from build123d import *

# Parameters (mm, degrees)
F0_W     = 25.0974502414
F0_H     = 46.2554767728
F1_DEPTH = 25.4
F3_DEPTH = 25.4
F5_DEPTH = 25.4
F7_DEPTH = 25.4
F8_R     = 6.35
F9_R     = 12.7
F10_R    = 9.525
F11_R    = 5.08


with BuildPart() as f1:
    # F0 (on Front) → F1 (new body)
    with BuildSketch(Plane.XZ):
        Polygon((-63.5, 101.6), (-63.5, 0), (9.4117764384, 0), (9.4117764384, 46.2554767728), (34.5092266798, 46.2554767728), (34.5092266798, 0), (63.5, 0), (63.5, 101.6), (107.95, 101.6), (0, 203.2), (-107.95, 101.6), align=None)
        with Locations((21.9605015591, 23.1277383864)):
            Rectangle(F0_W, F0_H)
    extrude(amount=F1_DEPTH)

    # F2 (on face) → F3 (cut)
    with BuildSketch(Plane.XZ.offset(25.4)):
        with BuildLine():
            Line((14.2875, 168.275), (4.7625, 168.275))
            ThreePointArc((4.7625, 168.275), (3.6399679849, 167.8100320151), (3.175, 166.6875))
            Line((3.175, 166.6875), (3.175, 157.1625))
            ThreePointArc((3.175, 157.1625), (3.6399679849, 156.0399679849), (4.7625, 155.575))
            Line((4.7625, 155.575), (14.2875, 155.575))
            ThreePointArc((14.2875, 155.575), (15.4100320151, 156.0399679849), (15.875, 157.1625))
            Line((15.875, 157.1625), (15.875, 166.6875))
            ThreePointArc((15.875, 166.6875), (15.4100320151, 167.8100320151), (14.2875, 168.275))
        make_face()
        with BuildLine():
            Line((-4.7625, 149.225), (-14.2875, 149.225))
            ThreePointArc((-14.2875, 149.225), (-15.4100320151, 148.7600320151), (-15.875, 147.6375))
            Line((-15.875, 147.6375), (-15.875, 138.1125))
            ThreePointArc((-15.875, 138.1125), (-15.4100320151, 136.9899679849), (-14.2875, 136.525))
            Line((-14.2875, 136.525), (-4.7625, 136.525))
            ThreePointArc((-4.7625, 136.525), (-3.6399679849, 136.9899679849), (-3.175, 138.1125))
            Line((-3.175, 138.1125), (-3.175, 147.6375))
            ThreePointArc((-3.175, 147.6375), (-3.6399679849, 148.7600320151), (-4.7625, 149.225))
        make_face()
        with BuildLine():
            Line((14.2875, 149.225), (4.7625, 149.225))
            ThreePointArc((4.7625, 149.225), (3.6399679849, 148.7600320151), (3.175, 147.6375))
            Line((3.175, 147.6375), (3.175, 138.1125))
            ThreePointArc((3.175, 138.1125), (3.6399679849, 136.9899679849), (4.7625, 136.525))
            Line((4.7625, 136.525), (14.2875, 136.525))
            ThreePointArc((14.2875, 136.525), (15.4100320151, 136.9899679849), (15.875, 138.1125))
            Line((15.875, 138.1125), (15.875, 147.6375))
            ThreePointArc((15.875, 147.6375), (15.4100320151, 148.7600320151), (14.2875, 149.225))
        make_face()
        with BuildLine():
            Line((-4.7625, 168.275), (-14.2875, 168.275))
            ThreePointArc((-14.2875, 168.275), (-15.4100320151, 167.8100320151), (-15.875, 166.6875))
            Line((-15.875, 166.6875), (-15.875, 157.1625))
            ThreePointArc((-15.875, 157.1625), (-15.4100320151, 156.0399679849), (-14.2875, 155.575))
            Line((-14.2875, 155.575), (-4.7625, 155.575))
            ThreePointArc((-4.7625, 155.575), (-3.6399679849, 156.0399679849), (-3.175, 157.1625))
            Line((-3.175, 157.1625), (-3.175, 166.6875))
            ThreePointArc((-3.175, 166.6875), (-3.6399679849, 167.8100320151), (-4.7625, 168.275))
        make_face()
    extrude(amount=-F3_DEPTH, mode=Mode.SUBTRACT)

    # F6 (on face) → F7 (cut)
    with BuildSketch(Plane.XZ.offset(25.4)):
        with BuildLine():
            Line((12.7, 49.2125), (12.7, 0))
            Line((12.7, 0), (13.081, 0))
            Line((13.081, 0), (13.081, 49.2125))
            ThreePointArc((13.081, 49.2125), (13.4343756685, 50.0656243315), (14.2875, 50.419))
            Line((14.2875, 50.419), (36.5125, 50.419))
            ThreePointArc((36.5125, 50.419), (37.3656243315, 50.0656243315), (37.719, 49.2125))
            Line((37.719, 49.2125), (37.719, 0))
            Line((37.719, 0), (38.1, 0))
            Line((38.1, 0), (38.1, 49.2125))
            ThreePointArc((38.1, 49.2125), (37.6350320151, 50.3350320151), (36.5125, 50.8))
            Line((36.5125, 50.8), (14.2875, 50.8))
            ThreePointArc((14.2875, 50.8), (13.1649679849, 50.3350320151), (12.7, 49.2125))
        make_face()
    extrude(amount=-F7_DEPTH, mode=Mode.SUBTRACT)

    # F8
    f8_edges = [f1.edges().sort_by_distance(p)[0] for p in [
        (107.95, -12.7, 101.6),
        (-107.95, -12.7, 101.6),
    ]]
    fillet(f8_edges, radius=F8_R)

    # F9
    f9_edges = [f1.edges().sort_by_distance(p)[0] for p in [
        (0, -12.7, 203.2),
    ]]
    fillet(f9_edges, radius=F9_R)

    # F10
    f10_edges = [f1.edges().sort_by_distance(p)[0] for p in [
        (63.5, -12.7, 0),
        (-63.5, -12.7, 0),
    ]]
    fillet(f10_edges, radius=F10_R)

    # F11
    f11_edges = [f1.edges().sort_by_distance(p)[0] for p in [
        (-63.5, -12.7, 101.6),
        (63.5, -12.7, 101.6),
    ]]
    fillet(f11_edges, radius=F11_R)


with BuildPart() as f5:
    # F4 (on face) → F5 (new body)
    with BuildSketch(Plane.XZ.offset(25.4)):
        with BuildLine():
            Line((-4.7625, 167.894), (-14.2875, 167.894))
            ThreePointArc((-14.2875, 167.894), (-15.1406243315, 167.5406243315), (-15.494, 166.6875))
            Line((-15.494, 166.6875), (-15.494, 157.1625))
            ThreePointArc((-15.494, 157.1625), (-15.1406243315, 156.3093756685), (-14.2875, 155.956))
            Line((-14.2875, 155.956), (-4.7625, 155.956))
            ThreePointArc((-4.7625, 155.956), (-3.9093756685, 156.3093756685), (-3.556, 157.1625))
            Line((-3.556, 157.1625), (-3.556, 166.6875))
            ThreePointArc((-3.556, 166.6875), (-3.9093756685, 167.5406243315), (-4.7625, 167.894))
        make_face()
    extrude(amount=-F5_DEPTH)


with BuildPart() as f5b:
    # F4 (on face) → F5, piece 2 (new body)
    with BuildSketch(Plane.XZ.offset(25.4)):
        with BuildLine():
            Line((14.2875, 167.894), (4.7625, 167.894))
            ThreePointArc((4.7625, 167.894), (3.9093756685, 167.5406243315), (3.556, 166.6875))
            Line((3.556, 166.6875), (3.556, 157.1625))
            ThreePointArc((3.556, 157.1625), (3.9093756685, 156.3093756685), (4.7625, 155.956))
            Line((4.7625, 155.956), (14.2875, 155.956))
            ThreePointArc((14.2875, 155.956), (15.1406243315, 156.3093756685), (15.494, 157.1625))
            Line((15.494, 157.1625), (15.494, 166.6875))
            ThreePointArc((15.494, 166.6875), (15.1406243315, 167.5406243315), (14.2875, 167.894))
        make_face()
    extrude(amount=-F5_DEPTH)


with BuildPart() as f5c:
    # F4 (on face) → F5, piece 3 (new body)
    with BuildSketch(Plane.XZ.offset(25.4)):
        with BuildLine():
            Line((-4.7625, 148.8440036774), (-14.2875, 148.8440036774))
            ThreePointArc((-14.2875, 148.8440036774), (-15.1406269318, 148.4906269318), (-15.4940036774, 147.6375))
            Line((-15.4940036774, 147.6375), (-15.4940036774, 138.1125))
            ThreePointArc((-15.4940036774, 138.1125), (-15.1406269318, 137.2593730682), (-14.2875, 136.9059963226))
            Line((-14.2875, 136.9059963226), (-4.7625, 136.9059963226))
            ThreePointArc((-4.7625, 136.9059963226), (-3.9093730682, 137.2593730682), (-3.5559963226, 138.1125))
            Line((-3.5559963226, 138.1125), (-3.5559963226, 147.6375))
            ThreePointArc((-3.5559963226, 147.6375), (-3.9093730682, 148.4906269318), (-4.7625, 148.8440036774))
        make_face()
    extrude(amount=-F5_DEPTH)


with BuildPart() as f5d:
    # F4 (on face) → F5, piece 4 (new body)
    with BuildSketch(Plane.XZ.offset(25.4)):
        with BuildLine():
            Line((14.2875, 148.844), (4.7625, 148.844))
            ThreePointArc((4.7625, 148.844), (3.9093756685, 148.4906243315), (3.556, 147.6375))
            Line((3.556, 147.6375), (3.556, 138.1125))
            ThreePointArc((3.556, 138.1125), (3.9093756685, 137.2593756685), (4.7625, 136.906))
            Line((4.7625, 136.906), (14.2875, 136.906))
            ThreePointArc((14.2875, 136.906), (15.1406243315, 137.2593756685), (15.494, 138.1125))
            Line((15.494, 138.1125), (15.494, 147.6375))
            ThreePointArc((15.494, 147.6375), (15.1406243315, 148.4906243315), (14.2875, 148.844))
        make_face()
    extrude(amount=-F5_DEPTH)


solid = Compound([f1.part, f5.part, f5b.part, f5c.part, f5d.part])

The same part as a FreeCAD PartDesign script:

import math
import FreeCAD as App
import Part
import Sketcher
Q = App.Units.Quantity


def edges_at(feature, points):
    """Names of the edges that pass closest to the given points."""
    edges = feature.Shape.Edges
    near = lambda p: min(range(len(edges)), key=lambda i: edges[i].distToShape(Part.Vertex(*p))[0])
    return sorted({f"Edge{near(p) + 1}" for p in points})

doc = App.newDocument("Part")
body = doc.addObject("PartDesign::Body", "Body")
body.AllowCompound = True

# Sketch on XZ plane
sketch1 = body.newObject("Sketcher::SketchObject", "Sketch")
sketch1.AttachmentSupport = (doc.getObject("XZ_Plane"), [""])
sketch1.MapMode = "FlatFace"
sketch1.addGeometry(Part.LineSegment(App.Vector(-64, 102, 0), App.Vector(-64, 0, 0)), False)
sketch1.addGeometry(Part.LineSegment(App.Vector(-64, 0, 0), App.Vector(64, 0, 0)), False)
sketch1.addGeometry(Part.LineSegment(App.Vector(64, 0, 0), App.Vector(64, 102, 0)), False)
sketch1.addGeometry(Part.LineSegment(App.Vector(64, 102, 0), App.Vector(108, 102, 0)), False)
sketch1.addGeometry(Part.LineSegment(App.Vector(108, 102, 0), App.Vector(0, 203, 0)), False)
sketch1.addGeometry(Part.LineSegment(App.Vector(0, 203, 0), App.Vector(-108, 102, 0)), False)
sketch1.addGeometry(Part.LineSegment(App.Vector(-108, 102, 0), App.Vector(-64, 102, 0)), False)
sketch1.addConstraint(Sketcher.Constraint("Coincident", 0, 2, 1, 1))
sketch1.addConstraint(Sketcher.Constraint("Coincident", 1, 2, 2, 1))
sketch1.addConstraint(Sketcher.Constraint("Coincident", 2, 2, 3, 1))
sketch1.addConstraint(Sketcher.Constraint("Coincident", 3, 2, 4, 1))
sketch1.addConstraint(Sketcher.Constraint("Coincident", 4, 2, 5, 1))
sketch1.addConstraint(Sketcher.Constraint("Coincident", 5, 2, 6, 1))
sketch1.addConstraint(Sketcher.Constraint("Coincident", 6, 2, 0, 1))
sketch1.addConstraint(Sketcher.Constraint("Vertical", 0))
sketch1.addConstraint(Sketcher.Constraint("Horizontal", 1))
sketch1.addConstraint(Sketcher.Constraint("Vertical", 2))
sketch1.addConstraint(Sketcher.Constraint("Horizontal", 3))
sketch1.addConstraint(Sketcher.Constraint("Horizontal", 6))
sketch1.addConstraint(Sketcher.Constraint("Symmetric", 0, 2, 1, 2, -1, 1))
sketch1.addConstraint(Sketcher.Constraint("Symmetric", 3, 2, 5, 2, -2))
sketch1.addConstraint(Sketcher.Constraint("PointOnObject", 4, 2, -2))
sketch1.addConstraint(Sketcher.Constraint("DistanceX", 1, 1, 1, 2, Q("5 in")))
sketch1.addConstraint(Sketcher.Constraint("DistanceY", 0, 2, 0, 1, Q("4 in")))
sketch1.addConstraint(Sketcher.Constraint("DistanceY", -1, 1, 4, 2, Q("8 in")))
sketch1.addConstraint(Sketcher.Constraint("DistanceX", 3, 1, 3, 2, Q("1.75 in")))
pad1 = body.newObject("PartDesign::Pad", "Pad")
pad1.Profile = sketch1
pad1.Length = Q("1 in")

# Sketch on XZ plane
sketch2 = body.newObject("Sketcher::SketchObject", "Sketch001")
sketch2.AttachmentSupport = (doc.getObject("XZ_Plane"), [""])
sketch2.MapMode = "FlatFace"
sketch2.AttachmentOffset = App.Placement(App.Vector(0, 0, 1 * 25.4), App.Rotation())
sketch2.addGeometry(Part.LineSegment(App.Vector(14.3, 168.3, 0), App.Vector(4.8, 168.3, 0)), False)
sketch2.addGeometry(Part.ArcOfCircle(Part.Circle(App.Vector(4.8, 166.7, 0), App.Vector(0, 0, 1), 1.6), math.radians(90), math.radians(180)), False)
sketch2.addGeometry(Part.LineSegment(App.Vector(3.2, 166.7, 0), App.Vector(3.2, 157.2, 0)), False)
sketch2.addGeometry(Part.ArcOfCircle(Part.Circle(App.Vector(4.8, 157.2, 0), App.Vector(0, 0, 1), 1.6), math.radians(180), math.radians(270)), False)
sketch2.addGeometry(Part.LineSegment(App.Vector(4.8, 155.6, 0), App.Vector(14.3, 155.6, 0)), False)
sketch2.addGeometry(Part.ArcOfCircle(Part.Circle(App.Vector(14.3, 157.2, 0), App.Vector(0, 0, 1), 1.6), math.radians(-90), math.radians(0)), False)
sketch2.addGeometry(Part.LineSegment(App.Vector(15.9, 157.2, 0), App.Vector(15.9, 166.7, 0)), False)
sketch2.addGeometry(Part.ArcOfCircle(Part.Circle(App.Vector(14.3, 166.7, 0), App.Vector(0, 0, 1), 1.6), math.radians(0), math.radians(90)), False)
sketch2.addGeometry(Part.LineSegment(App.Vector(-4.8, 149.2, 0), App.Vector(-14.3, 149.2, 0)), False)
sketch2.addGeometry(Part.ArcOfCircle(Part.Circle(App.Vector(-14.3, 147.6, 0), App.Vector(0, 0, 1), 1.6), math.radians(90), math.radians(180)), False)
sketch2.addGeometry(Part.LineSegment(App.Vector(-15.9, 147.6, 0), App.Vector(-15.9, 138.1, 0)), False)
sketch2.addGeometry(Part.ArcOfCircle(Part.Circle(App.Vector(-14.3, 138.1, 0), App.Vector(0, 0, 1), 1.6), math.radians(180), math.radians(270)), False)
sketch2.addGeometry(Part.LineSegment(App.Vector(-14.3, 136.5, 0), App.Vector(-4.8, 136.5, 0)), False)
sketch2.addGeometry(Part.ArcOfCircle(Part.Circle(App.Vector(-4.8, 138.1, 0), App.Vector(0, 0, 1), 1.6), math.radians(-90), math.radians(0)), False)
sketch2.addGeometry(Part.LineSegment(App.Vector(-3.2, 138.1, 0), App.Vector(-3.2, 147.6, 0)), False)
sketch2.addGeometry(Part.ArcOfCircle(Part.Circle(App.Vector(-4.8, 147.6, 0), App.Vector(0, 0, 1), 1.6), math.radians(0), math.radians(90)), False)
sketch2.addGeometry(Part.LineSegment(App.Vector(14.3, 149.2, 0), App.Vector(4.8, 149.2, 0)), False)
sketch2.addGeometry(Part.ArcOfCircle(Part.Circle(App.Vector(4.8, 147.6, 0), App.Vector(0, 0, 1), 1.6), math.radians(90), math.radians(180)), False)
sketch2.addGeometry(Part.LineSegment(App.Vector(3.2, 147.6, 0), App.Vector(3.2, 138.1, 0)), False)
sketch2.addGeometry(Part.ArcOfCircle(Part.Circle(App.Vector(4.8, 138.1, 0), App.Vector(0, 0, 1), 1.6), math.radians(180), math.radians(270)), False)
sketch2.addGeometry(Part.LineSegment(App.Vector(4.8, 136.5, 0), App.Vector(14.3, 136.5, 0)), False)
sketch2.addGeometry(Part.ArcOfCircle(Part.Circle(App.Vector(14.3, 138.1, 0), App.Vector(0, 0, 1), 1.6), math.radians(-90), math.radians(0)), False)
sketch2.addGeometry(Part.LineSegment(App.Vector(15.9, 138.1, 0), App.Vector(15.9, 147.6, 0)), False)
sketch2.addGeometry(Part.ArcOfCircle(Part.Circle(App.Vector(14.3, 147.6, 0), App.Vector(0, 0, 1), 1.6), math.radians(0), math.radians(90)), False)
sketch2.addGeometry(Part.LineSegment(App.Vector(-4.8, 168.3, 0), App.Vector(-14.3, 168.3, 0)), False)
sketch2.addGeometry(Part.ArcOfCircle(Part.Circle(App.Vector(-14.3, 166.7, 0), App.Vector(0, 0, 1), 1.6), math.radians(90), math.radians(180)), False)
sketch2.addGeometry(Part.LineSegment(App.Vector(-15.9, 166.7, 0), App.Vector(-15.9, 157.2, 0)), False)
sketch2.addGeometry(Part.ArcOfCircle(Part.Circle(App.Vector(-14.3, 157.2, 0), App.Vector(0, 0, 1), 1.6), math.radians(180), math.radians(270)), False)
sketch2.addGeometry(Part.LineSegment(App.Vector(-14.3, 155.6, 0), App.Vector(-4.8, 155.6, 0)), False)
sketch2.addGeometry(Part.ArcOfCircle(Part.Circle(App.Vector(-4.8, 157.2, 0), App.Vector(0, 0, 1), 1.6), math.radians(-90), math.radians(0)), False)
sketch2.addGeometry(Part.LineSegment(App.Vector(-3.2, 157.2, 0), App.Vector(-3.2, 166.7, 0)), False)
sketch2.addGeometry(Part.ArcOfCircle(Part.Circle(App.Vector(-4.8, 166.7, 0), App.Vector(0, 0, 1), 1.6), math.radians(0), math.radians(90)), False)
sketch2.addConstraint(Sketcher.Constraint("Tangent", 0, 2, 1, 1))
sketch2.addConstraint(Sketcher.Constraint("Tangent", 1, 2, 2, 1))
sketch2.addConstraint(Sketcher.Constraint("Tangent", 2, 2, 3, 1))
sketch2.addConstraint(Sketcher.Constraint("Tangent", 3, 2, 4, 1))
sketch2.addConstraint(Sketcher.Constraint("Tangent", 4, 2, 5, 1))
sketch2.addConstraint(Sketcher.Constraint("Tangent", 5, 2, 6, 1))
sketch2.addConstraint(Sketcher.Constraint("Tangent", 6, 2, 7, 1))
sketch2.addConstraint(Sketcher.Constraint("Tangent", 7, 2, 0, 1))
sketch2.addConstraint(Sketcher.Constraint("Tangent", 8, 2, 9, 1))
sketch2.addConstraint(Sketcher.Constraint("Tangent", 9, 2, 10, 1))
sketch2.addConstraint(Sketcher.Constraint("Tangent", 10, 2, 11, 1))
sketch2.addConstraint(Sketcher.Constraint("Tangent", 11, 2, 12, 1))
sketch2.addConstraint(Sketcher.Constraint("Tangent", 12, 2, 13, 1))
sketch2.addConstraint(Sketcher.Constraint("Tangent", 13, 2, 14, 1))
sketch2.addConstraint(Sketcher.Constraint("Tangent", 14, 2, 15, 1))
sketch2.addConstraint(Sketcher.Constraint("Tangent", 15, 2, 8, 1))
sketch2.addConstraint(Sketcher.Constraint("Tangent", 16, 2, 17, 1))
sketch2.addConstraint(Sketcher.Constraint("Tangent", 17, 2, 18, 1))
sketch2.addConstraint(Sketcher.Constraint("Tangent", 18, 2, 19, 1))
sketch2.addConstraint(Sketcher.Constraint("Tangent", 19, 2, 20, 1))
sketch2.addConstraint(Sketcher.Constraint("Tangent", 20, 2, 21, 1))
sketch2.addConstraint(Sketcher.Constraint("Tangent", 21, 2, 22, 1))
sketch2.addConstraint(Sketcher.Constraint("Tangent", 22, 2, 23, 1))
sketch2.addConstraint(Sketcher.Constraint("Tangent", 23, 2, 16, 1))
sketch2.addConstraint(Sketcher.Constraint("Tangent", 24, 2, 25, 1))
sketch2.addConstraint(Sketcher.Constraint("Tangent", 25, 2, 26, 1))
sketch2.addConstraint(Sketcher.Constraint("Tangent", 26, 2, 27, 1))
sketch2.addConstraint(Sketcher.Constraint("Tangent", 27, 2, 28, 1))
sketch2.addConstraint(Sketcher.Constraint("Tangent", 28, 2, 29, 1))
sketch2.addConstraint(Sketcher.Constraint("Tangent", 29, 2, 30, 1))
sketch2.addConstraint(Sketcher.Constraint("Tangent", 30, 2, 31, 1))
sketch2.addConstraint(Sketcher.Constraint("Tangent", 31, 2, 24, 1))
sketch2.addConstraint(Sketcher.Constraint("Horizontal", 0))
sketch2.addConstraint(Sketcher.Constraint("Vertical", 2))
sketch2.addConstraint(Sketcher.Constraint("Horizontal", 4))
sketch2.addConstraint(Sketcher.Constraint("Vertical", 6))
sketch2.addConstraint(Sketcher.Constraint("Horizontal", 8))
sketch2.addConstraint(Sketcher.Constraint("Vertical", 10))
sketch2.addConstraint(Sketcher.Constraint("Horizontal", 12))
sketch2.addConstraint(Sketcher.Constraint("Vertical", 14))
sketch2.addConstraint(Sketcher.Constraint("Horizontal", 16))
sketch2.addConstraint(Sketcher.Constraint("Vertical", 18))
sketch2.addConstraint(Sketcher.Constraint("Horizontal", 20))
sketch2.addConstraint(Sketcher.Constraint("Vertical", 22))
sketch2.addConstraint(Sketcher.Constraint("Horizontal", 24))
sketch2.addConstraint(Sketcher.Constraint("Vertical", 26))
sketch2.addConstraint(Sketcher.Constraint("Horizontal", 28))
sketch2.addConstraint(Sketcher.Constraint("Vertical", 30))
sketch2.addConstraint(Sketcher.Constraint("Equal", 1, 3))
sketch2.addConstraint(Sketcher.Constraint("Equal", 3, 5))
sketch2.addConstraint(Sketcher.Constraint("Equal", 5, 7))
sketch2.addConstraint(Sketcher.Constraint("Equal", 7, 9))
sketch2.addConstraint(Sketcher.Constraint("Equal", 9, 11))
sketch2.addConstraint(Sketcher.Constraint("Equal", 11, 13))
sketch2.addConstraint(Sketcher.Constraint("Equal", 13, 15))
sketch2.addConstraint(Sketcher.Constraint("Equal", 15, 17))
sketch2.addConstraint(Sketcher.Constraint("Equal", 17, 19))
sketch2.addConstraint(Sketcher.Constraint("Equal", 19, 21))
sketch2.addConstraint(Sketcher.Constraint("Equal", 21, 23))
sketch2.addConstraint(Sketcher.Constraint("Equal", 23, 25))
sketch2.addConstraint(Sketcher.Constraint("Equal", 25, 27))
sketch2.addConstraint(Sketcher.Constraint("Equal", 27, 29))
sketch2.addConstraint(Sketcher.Constraint("Equal", 29, 31))
sketch2.addConstraint(Sketcher.Constraint("Symmetric", 15, 3, 17, 3, -2))
sketch2.addConstraint(Sketcher.Constraint("Symmetric", 11, 3, 21, 3, -2))
sketch2.addConstraint(Sketcher.Constraint("Symmetric", 7, 3, 25, 3, -2))
sketch2.addConstraint(Sketcher.Constraint("Symmetric", 3, 3, 29, 3, -2))
sketch2.addConstraint(Sketcher.Constraint("Vertical", 3, 3, 17, 3))
sketch2.addConstraint(Sketcher.Constraint("Vertical", 7, 3, 21, 3))
sketch2.addConstraint(Sketcher.Constraint("Equal", 28, 2))
sketch2.addConstraint(Sketcher.Constraint("Equal", 6, 10))
sketch2.addConstraint(Sketcher.Constraint("Radius", 1, Q("0.0625 in")))
sketch2.addConstraint(Sketcher.Constraint("DistanceX", 0, 2, 0, 1, Q("0.375 in")))
sketch2.addConstraint(Sketcher.Constraint("DistanceX", 9, 3, 3, 3, Q("0.75 in")))
sketch2.addConstraint(Sketcher.Constraint("DistanceY", 9, 3, 1, 3, Q("0.75 in")))
sketch2.addConstraint(Sketcher.Constraint("DistanceY", -1, 1, 1, 3, Q("6.5625 in")))
pocket1 = body.newObject("PartDesign::Pocket", "Pocket")
pocket1.Profile = sketch2
pocket1.Length = Q("1 in")

# Sketch on XZ plane
sketch3 = body.newObject("Sketcher::SketchObject", "Sketch002")
sketch3.AttachmentSupport = (doc.getObject("XZ_Plane"), [""])
sketch3.MapMode = "FlatFace"
sketch3.AttachmentOffset = App.Placement(App.Vector(0, 0, 1 * 25.4), App.Rotation())
sketch3.addGeometry(Part.LineSegment(App.Vector(12.7, 49.21, 0), App.Vector(12.7, 0, 0)), False)
sketch3.addGeometry(Part.LineSegment(App.Vector(12.7, 0, 0), App.Vector(13.08, 0, 0)), False)
sketch3.addGeometry(Part.LineSegment(App.Vector(13.08, 0, 0), App.Vector(13.08, 49.21, 0)), False)
sketch3.addGeometry(Part.ArcOfCircle(Part.Circle(App.Vector(14.29, 49.21, 0), App.Vector(0, 0, 1), 1.21), math.radians(90), math.radians(180)), False)
sketch3.addGeometry(Part.LineSegment(App.Vector(14.29, 50.42, 0), App.Vector(36.51, 50.42, 0)), False)
sketch3.addGeometry(Part.ArcOfCircle(Part.Circle(App.Vector(36.51, 49.21, 0), App.Vector(0, 0, 1), 1.21), math.radians(0), math.radians(90)), False)
sketch3.addGeometry(Part.LineSegment(App.Vector(37.72, 49.21, 0), App.Vector(37.72, 0, 0)), False)
sketch3.addGeometry(Part.LineSegment(App.Vector(37.72, 0, 0), App.Vector(38.1, 0, 0)), False)
sketch3.addGeometry(Part.LineSegment(App.Vector(38.1, 0, 0), App.Vector(38.1, 49.21, 0)), False)
sketch3.addGeometry(Part.ArcOfCircle(Part.Circle(App.Vector(36.51, 49.21, 0), App.Vector(0, 0, 1), 1.59), math.radians(0), math.radians(90)), False)
sketch3.addGeometry(Part.LineSegment(App.Vector(36.51, 50.8, 0), App.Vector(14.29, 50.8, 0)), False)
sketch3.addGeometry(Part.ArcOfCircle(Part.Circle(App.Vector(14.29, 49.21, 0), App.Vector(0, 0, 1), 1.59), math.radians(90), math.radians(180)), False)
sketch3.addConstraint(Sketcher.Constraint("Coincident", 0, 2, 1, 1))
sketch3.addConstraint(Sketcher.Constraint("Coincident", 1, 2, 2, 1))
sketch3.addConstraint(Sketcher.Constraint("Tangent", 2, 2, 3, 2))
sketch3.addConstraint(Sketcher.Constraint("Tangent", 3, 1, 4, 1))
sketch3.addConstraint(Sketcher.Constraint("Tangent", 4, 2, 5, 2))
sketch3.addConstraint(Sketcher.Constraint("Tangent", 5, 1, 6, 1))
sketch3.addConstraint(Sketcher.Constraint("Coincident", 6, 2, 7, 1))
sketch3.addConstraint(Sketcher.Constraint("Coincident", 7, 2, 8, 1))
sketch3.addConstraint(Sketcher.Constraint("Tangent", 8, 2, 9, 1))
sketch3.addConstraint(Sketcher.Constraint("Tangent", 9, 2, 10, 1))
sketch3.addConstraint(Sketcher.Constraint("Tangent", 10, 2, 11, 1))
sketch3.addConstraint(Sketcher.Constraint("Tangent", 11, 2, 0, 1))
sketch3.addConstraint(Sketcher.Constraint("Vertical", 0))
sketch3.addConstraint(Sketcher.Constraint("Horizontal", 1))
sketch3.addConstraint(Sketcher.Constraint("Vertical", 2))
sketch3.addConstraint(Sketcher.Constraint("Horizontal", 4))
sketch3.addConstraint(Sketcher.Constraint("Vertical", 6))
sketch3.addConstraint(Sketcher.Constraint("Horizontal", 7))
sketch3.addConstraint(Sketcher.Constraint("Vertical", 8))
sketch3.addConstraint(Sketcher.Constraint("Horizontal", 10))
sketch3.addConstraint(Sketcher.Constraint("Coincident", 9, 3, 5, 3))
sketch3.addConstraint(Sketcher.Constraint("Coincident", 11, 3, 3, 3))
sketch3.addConstraint(Sketcher.Constraint("Equal", 3, 5))
sketch3.addConstraint(Sketcher.Constraint("PointOnObject", 0, 2, -1))
sketch3.addConstraint(Sketcher.Constraint("PointOnObject", 6, 2, -1))
sketch3.addConstraint(Sketcher.Constraint("DistanceY", -1, 1, 9, 2, Q("2 in")))
sketch3.addConstraint(Sketcher.Constraint("Radius", 9, Q("0.0625 in")))
sketch3.addConstraint(Sketcher.Constraint("DistanceX", 0, 2, 7, 2, Q("1 in")))
sketch3.addConstraint(Sketcher.Constraint("DistanceX", -1, 1, 0, 2, Q("0.5 in")))
sketch3.addConstraint(Sketcher.Constraint("Radius", 3, Q("0.0475 in")))
pocket2 = body.newObject("PartDesign::Pocket", "Pocket001")
pocket2.Profile = sketch3
pocket2.Length = Q("1 in")
doc.recompute()

fillet = body.newObject("PartDesign::Fillet", "Fillet")
fillet.Base = (pocket2, edges_at(pocket2, [(107.95, -12.7, 101.6), (-107.95, -12.7, 101.6)]))
fillet.Radius = Q("0.25 in")
doc.recompute()

fillet2 = body.newObject("PartDesign::Fillet", "Fillet001")
fillet2.Base = (fillet, edges_at(fillet, [(0, -12.7, 203.2)]))
fillet2.Radius = Q("0.5 in")
doc.recompute()

fillet3 = body.newObject("PartDesign::Fillet", "Fillet002")
fillet3.Base = (fillet2, edges_at(fillet2, [(63.5, -12.7, 0), (-63.5, -12.7, 0)]))
fillet3.Radius = Q("0.375 in")
doc.recompute()

fillet4 = body.newObject("PartDesign::Fillet", "Fillet003")
fillet4.Base = (fillet3, edges_at(fillet3, [(-63.5, -12.7, 101.6), (63.5, -12.7, 101.6)]))
fillet4.Radius = Q("0.2 in")
body2 = doc.addObject("PartDesign::Body", "Body001")

# Sketch on XZ plane
sketch4 = body2.newObject("Sketcher::SketchObject", "Sketch003")
sketch4.AttachmentSupport = (doc.getObject("XZ_Plane001"), [""])
sketch4.MapMode = "FlatFace"
sketch4.AttachmentOffset = App.Placement(App.Vector(0, 0, 1 * 25.4), App.Rotation())
sketch4.addGeometry(Part.LineSegment(App.Vector(-4.8, 167.9, 0), App.Vector(-14.3, 167.9, 0)), False)
sketch4.addGeometry(Part.ArcOfCircle(Part.Circle(App.Vector(-14.3, 166.7, 0), App.Vector(0, 0, 1), 1.2), math.radians(90), math.radians(180)), False)
sketch4.addGeometry(Part.LineSegment(App.Vector(-15.5, 166.7, 0), App.Vector(-15.5, 157.2, 0)), False)
sketch4.addGeometry(Part.ArcOfCircle(Part.Circle(App.Vector(-14.3, 157.2, 0), App.Vector(0, 0, 1), 1.2), math.radians(180), math.radians(270)), False)
sketch4.addGeometry(Part.LineSegment(App.Vector(-14.3, 156, 0), App.Vector(-4.8, 156, 0)), False)
sketch4.addGeometry(Part.ArcOfCircle(Part.Circle(App.Vector(-4.8, 157.2, 0), App.Vector(0, 0, 1), 1.2), math.radians(-90), math.radians(0)), False)
sketch4.addGeometry(Part.LineSegment(App.Vector(-3.6, 157.2, 0), App.Vector(-3.6, 166.7, 0)), False)
sketch4.addGeometry(Part.ArcOfCircle(Part.Circle(App.Vector(-4.8, 166.7, 0), App.Vector(0, 0, 1), 1.2), math.radians(0), math.radians(90)), False)
sketch4.addConstraint(Sketcher.Constraint("Tangent", 0, 2, 1, 1))
sketch4.addConstraint(Sketcher.Constraint("Tangent", 1, 2, 2, 1))
sketch4.addConstraint(Sketcher.Constraint("Tangent", 2, 2, 3, 1))
sketch4.addConstraint(Sketcher.Constraint("Tangent", 3, 2, 4, 1))
sketch4.addConstraint(Sketcher.Constraint("Tangent", 4, 2, 5, 1))
sketch4.addConstraint(Sketcher.Constraint("Tangent", 5, 2, 6, 1))
sketch4.addConstraint(Sketcher.Constraint("Tangent", 6, 2, 7, 1))
sketch4.addConstraint(Sketcher.Constraint("Tangent", 7, 2, 0, 1))
sketch4.addConstraint(Sketcher.Constraint("Horizontal", 0))
sketch4.addConstraint(Sketcher.Constraint("Vertical", 2))
sketch4.addConstraint(Sketcher.Constraint("Horizontal", 4))
sketch4.addConstraint(Sketcher.Constraint("Vertical", 6))
sketch4.addConstraint(Sketcher.Constraint("Equal", 1, 3))
sketch4.addConstraint(Sketcher.Constraint("Equal", 3, 5))
sketch4.addConstraint(Sketcher.Constraint("Equal", 5, 7))
sketch4.addConstraint(Sketcher.Constraint("Equal", 4, 2))
sketch4.addConstraint(Sketcher.Constraint("Radius", 1, Q("0.0475 in")))
sketch4.addConstraint(Sketcher.Constraint("DistanceX", 0, 2, 0, 1, Q("0.375 in")))
sketch4.addConstraint(Sketcher.Constraint("DistanceY", -1, 1, 0, 2, Q("6.61 in")))
sketch4.addConstraint(Sketcher.Constraint("DistanceX", 1, 2, -1, 1, Q("0.61 in")))
pad2 = body2.newObject("PartDesign::Pad", "Pad001")
pad2.Profile = sketch4
pad2.Length = Q("1 in")
pad2.Reversed = True
body3 = doc.addObject("PartDesign::Body", "Body002")

# Sketch on XZ plane
sketch5 = body3.newObject("Sketcher::SketchObject", "Sketch004")
sketch5.AttachmentSupport = (doc.getObject("XZ_Plane002"), [""])
sketch5.MapMode = "FlatFace"
sketch5.AttachmentOffset = App.Placement(App.Vector(0, 0, 1 * 25.4), App.Rotation())
sketch5.addGeometry(Part.LineSegment(App.Vector(14.3, 167.9, 0), App.Vector(4.8, 167.9, 0)), False)
sketch5.addGeometry(Part.ArcOfCircle(Part.Circle(App.Vector(4.8, 166.7, 0), App.Vector(0, 0, 1), 1.2), math.radians(90), math.radians(180)), False)
sketch5.addGeometry(Part.LineSegment(App.Vector(3.6, 166.7, 0), App.Vector(3.6, 157.2, 0)), False)
sketch5.addGeometry(Part.ArcOfCircle(Part.Circle(App.Vector(4.8, 157.2, 0), App.Vector(0, 0, 1), 1.2), math.radians(180), math.radians(270)), False)
sketch5.addGeometry(Part.LineSegment(App.Vector(4.8, 156, 0), App.Vector(14.3, 156, 0)), False)
sketch5.addGeometry(Part.ArcOfCircle(Part.Circle(App.Vector(14.3, 157.2, 0), App.Vector(0, 0, 1), 1.2), math.radians(-90), math.radians(0)), False)
sketch5.addGeometry(Part.LineSegment(App.Vector(15.5, 157.2, 0), App.Vector(15.5, 166.7, 0)), False)
sketch5.addGeometry(Part.ArcOfCircle(Part.Circle(App.Vector(14.3, 166.7, 0), App.Vector(0, 0, 1), 1.2), math.radians(0), math.radians(90)), False)
sketch5.addConstraint(Sketcher.Constraint("Tangent", 0, 2, 1, 1))
sketch5.addConstraint(Sketcher.Constraint("Tangent", 1, 2, 2, 1))
sketch5.addConstraint(Sketcher.Constraint("Tangent", 2, 2, 3, 1))
sketch5.addConstraint(Sketcher.Constraint("Tangent", 3, 2, 4, 1))
sketch5.addConstraint(Sketcher.Constraint("Tangent", 4, 2, 5, 1))
sketch5.addConstraint(Sketcher.Constraint("Tangent", 5, 2, 6, 1))
sketch5.addConstraint(Sketcher.Constraint("Tangent", 6, 2, 7, 1))
sketch5.addConstraint(Sketcher.Constraint("Tangent", 7, 2, 0, 1))
sketch5.addConstraint(Sketcher.Constraint("Horizontal", 0))
sketch5.addConstraint(Sketcher.Constraint("Vertical", 2))
sketch5.addConstraint(Sketcher.Constraint("Horizontal", 4))
sketch5.addConstraint(Sketcher.Constraint("Vertical", 6))
sketch5.addConstraint(Sketcher.Constraint("Equal", 1, 3))
sketch5.addConstraint(Sketcher.Constraint("Equal", 3, 5))
sketch5.addConstraint(Sketcher.Constraint("Equal", 5, 7))
sketch5.addConstraint(Sketcher.Constraint("Equal", 4, 2))
sketch5.addConstraint(Sketcher.Constraint("Radius", 1, Q("0.0475 in")))
sketch5.addConstraint(Sketcher.Constraint("DistanceX", 0, 2, 0, 1, Q("0.375 in")))
sketch5.addConstraint(Sketcher.Constraint("DistanceY", -1, 1, 0, 2, Q("6.61 in")))
sketch5.addConstraint(Sketcher.Constraint("DistanceX", -1, 1, 1, 2, Q("0.14 in")))
pad3 = body3.newObject("PartDesign::Pad", "Pad002")
pad3.Profile = sketch5
pad3.Length = Q("1 in")
pad3.Reversed = True
body4 = doc.addObject("PartDesign::Body", "Body003")

# Sketch on XZ plane
sketch6 = body4.newObject("Sketcher::SketchObject", "Sketch005")
sketch6.AttachmentSupport = (doc.getObject("XZ_Plane003"), [""])
sketch6.MapMode = "FlatFace"
sketch6.AttachmentOffset = App.Placement(App.Vector(0, 0, 1 * 25.4), App.Rotation())
sketch6.addGeometry(Part.LineSegment(App.Vector(-4.8, 148.8, 0), App.Vector(-14.3, 148.8, 0)), False)
sketch6.addGeometry(Part.ArcOfCircle(Part.Circle(App.Vector(-14.3, 147.6, 0), App.Vector(0, 0, 1), 1.2), math.radians(90), math.radians(180)), False)
sketch6.addGeometry(Part.LineSegment(App.Vector(-15.5, 147.6, 0), App.Vector(-15.5, 138.1, 0)), False)
sketch6.addGeometry(Part.ArcOfCircle(Part.Circle(App.Vector(-14.3, 138.1, 0), App.Vector(0, 0, 1), 1.2), math.radians(180), math.radians(270)), False)
sketch6.addGeometry(Part.LineSegment(App.Vector(-14.3, 136.9, 0), App.Vector(-4.8, 136.9, 0)), False)
sketch6.addGeometry(Part.ArcOfCircle(Part.Circle(App.Vector(-4.8, 138.1, 0), App.Vector(0, 0, 1), 1.2), math.radians(-90), math.radians(0)), False)
sketch6.addGeometry(Part.LineSegment(App.Vector(-3.6, 138.1, 0), App.Vector(-3.6, 147.6, 0)), False)
sketch6.addGeometry(Part.ArcOfCircle(Part.Circle(App.Vector(-4.8, 147.6, 0), App.Vector(0, 0, 1), 1.2), math.radians(0), math.radians(90)), False)
sketch6.addConstraint(Sketcher.Constraint("Tangent", 0, 2, 1, 1))
sketch6.addConstraint(Sketcher.Constraint("Tangent", 1, 2, 2, 1))
sketch6.addConstraint(Sketcher.Constraint("Tangent", 2, 2, 3, 1))
sketch6.addConstraint(Sketcher.Constraint("Tangent", 3, 2, 4, 1))
sketch6.addConstraint(Sketcher.Constraint("Tangent", 4, 2, 5, 1))
sketch6.addConstraint(Sketcher.Constraint("Tangent", 5, 2, 6, 1))
sketch6.addConstraint(Sketcher.Constraint("Tangent", 6, 2, 7, 1))
sketch6.addConstraint(Sketcher.Constraint("Tangent", 7, 2, 0, 1))
sketch6.addConstraint(Sketcher.Constraint("Horizontal", 0))
sketch6.addConstraint(Sketcher.Constraint("Vertical", 2))
sketch6.addConstraint(Sketcher.Constraint("Horizontal", 4))
sketch6.addConstraint(Sketcher.Constraint("Vertical", 6))
sketch6.addConstraint(Sketcher.Constraint("Equal", 1, 3))
sketch6.addConstraint(Sketcher.Constraint("Equal", 3, 5))
sketch6.addConstraint(Sketcher.Constraint("Equal", 5, 7))
sketch6.addConstraint(Sketcher.Constraint("Equal", 4, 2))
sketch6.addConstraint(Sketcher.Constraint("Radius", 1, Q("0.0475001 in")))
sketch6.addConstraint(Sketcher.Constraint("DistanceX", 0, 2, 0, 1, Q("0.375 in")))
sketch6.addConstraint(Sketcher.Constraint("DistanceY", -1, 1, 0, 2, Q("5.8600001 in")))
sketch6.addConstraint(Sketcher.Constraint("DistanceX", 1, 2, -1, 1, Q("0.6100001 in")))
pad4 = body4.newObject("PartDesign::Pad", "Pad003")
pad4.Profile = sketch6
pad4.Length = Q("1 in")
pad4.Reversed = True
body5 = doc.addObject("PartDesign::Body", "Body004")

# Sketch on XZ plane
sketch7 = body5.newObject("Sketcher::SketchObject", "Sketch006")
sketch7.AttachmentSupport = (doc.getObject("XZ_Plane004"), [""])
sketch7.MapMode = "FlatFace"
sketch7.AttachmentOffset = App.Placement(App.Vector(0, 0, 1 * 25.4), App.Rotation())
sketch7.addGeometry(Part.LineSegment(App.Vector(14.3, 148.8, 0), App.Vector(4.8, 148.8, 0)), False)
sketch7.addGeometry(Part.ArcOfCircle(Part.Circle(App.Vector(4.8, 147.6, 0), App.Vector(0, 0, 1), 1.2), math.radians(90), math.radians(180)), False)
sketch7.addGeometry(Part.LineSegment(App.Vector(3.6, 147.6, 0), App.Vector(3.6, 138.1, 0)), False)
sketch7.addGeometry(Part.ArcOfCircle(Part.Circle(App.Vector(4.8, 138.1, 0), App.Vector(0, 0, 1), 1.2), math.radians(180), math.radians(270)), False)
sketch7.addGeometry(Part.LineSegment(App.Vector(4.8, 136.9, 0), App.Vector(14.3, 136.9, 0)), False)
sketch7.addGeometry(Part.ArcOfCircle(Part.Circle(App.Vector(14.3, 138.1, 0), App.Vector(0, 0, 1), 1.2), math.radians(-90), math.radians(0)), False)
sketch7.addGeometry(Part.LineSegment(App.Vector(15.5, 138.1, 0), App.Vector(15.5, 147.6, 0)), False)
sketch7.addGeometry(Part.ArcOfCircle(Part.Circle(App.Vector(14.3, 147.6, 0), App.Vector(0, 0, 1), 1.2), math.radians(0), math.radians(90)), False)
sketch7.addConstraint(Sketcher.Constraint("Tangent", 0, 2, 1, 1))
sketch7.addConstraint(Sketcher.Constraint("Tangent", 1, 2, 2, 1))
sketch7.addConstraint(Sketcher.Constraint("Tangent", 2, 2, 3, 1))
sketch7.addConstraint(Sketcher.Constraint("Tangent", 3, 2, 4, 1))
sketch7.addConstraint(Sketcher.Constraint("Tangent", 4, 2, 5, 1))
sketch7.addConstraint(Sketcher.Constraint("Tangent", 5, 2, 6, 1))
sketch7.addConstraint(Sketcher.Constraint("Tangent", 6, 2, 7, 1))
sketch7.addConstraint(Sketcher.Constraint("Tangent", 7, 2, 0, 1))
sketch7.addConstraint(Sketcher.Constraint("Horizontal", 0))
sketch7.addConstraint(Sketcher.Constraint("Vertical", 2))
sketch7.addConstraint(Sketcher.Constraint("Horizontal", 4))
sketch7.addConstraint(Sketcher.Constraint("Vertical", 6))
sketch7.addConstraint(Sketcher.Constraint("Equal", 1, 3))
sketch7.addConstraint(Sketcher.Constraint("Equal", 3, 5))
sketch7.addConstraint(Sketcher.Constraint("Equal", 5, 7))
sketch7.addConstraint(Sketcher.Constraint("Equal", 4, 2))
sketch7.addConstraint(Sketcher.Constraint("Radius", 1, Q("0.0475 in")))
sketch7.addConstraint(Sketcher.Constraint("DistanceX", 0, 2, 0, 1, Q("0.375 in")))
sketch7.addConstraint(Sketcher.Constraint("DistanceY", -1, 1, 0, 2, Q("5.86 in")))
sketch7.addConstraint(Sketcher.Constraint("DistanceX", -1, 1, 1, 2, Q("0.14 in")))
pad5 = body5.newObject("PartDesign::Pad", "Pad004")
pad5.Profile = sketch7
pad5.Length = Q("1 in")
pad5.Reversed = True

doc.recompute()
